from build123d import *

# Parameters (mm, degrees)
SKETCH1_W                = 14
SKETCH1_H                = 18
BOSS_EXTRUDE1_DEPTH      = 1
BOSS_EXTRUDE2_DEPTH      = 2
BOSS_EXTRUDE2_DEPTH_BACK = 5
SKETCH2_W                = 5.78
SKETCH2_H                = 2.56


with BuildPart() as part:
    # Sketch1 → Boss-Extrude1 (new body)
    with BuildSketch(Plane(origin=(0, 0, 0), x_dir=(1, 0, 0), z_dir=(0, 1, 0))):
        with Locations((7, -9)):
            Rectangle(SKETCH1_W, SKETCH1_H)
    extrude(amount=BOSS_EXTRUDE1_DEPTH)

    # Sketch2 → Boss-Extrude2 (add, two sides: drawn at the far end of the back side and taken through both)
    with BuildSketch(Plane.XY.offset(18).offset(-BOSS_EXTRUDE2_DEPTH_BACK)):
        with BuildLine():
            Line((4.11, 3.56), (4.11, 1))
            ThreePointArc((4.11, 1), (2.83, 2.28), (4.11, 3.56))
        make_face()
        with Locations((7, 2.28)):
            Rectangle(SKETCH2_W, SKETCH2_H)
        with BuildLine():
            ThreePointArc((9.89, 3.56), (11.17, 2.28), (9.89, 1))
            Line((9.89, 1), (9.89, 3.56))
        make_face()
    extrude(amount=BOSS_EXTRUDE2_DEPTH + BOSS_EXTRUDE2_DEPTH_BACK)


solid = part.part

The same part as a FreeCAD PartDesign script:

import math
import FreeCAD as App
import Part
import Sketcher

V = App.Vector
Q = App.Units.Quantity


def add_polygon(sketch, points):
    """Adds a closed chain of lines whose ends are joined by coincident constraints."""
    first, n = sketch.GeometryCount, len(points)
    for a, b in zip(points, points[1:] + points[:1]):
        sketch.addGeometry(Part.LineSegment(App.Vector(*a, 0), App.Vector(*b, 0)), False)
    for i in range(n):
        sketch.addConstraint(Sketcher.Constraint("Coincident", first + i, 2, first + (i + 1) % n, 1))

doc = App.newDocument("Part")
body = doc.addObject("PartDesign::Body", "Body")

# Sketch on XZ plane
sketch1 = body.newObject("Sketcher::SketchObject", "Sketch")
sketch1.AttachmentSupport = (doc.getObject("XZ_Plane"), [""])
sketch1.MapMode = "FlatFace"
add_polygon(sketch1, [(0, 0), (0, 18), (14, 18), (14, 0)])  # lines 0-3
sketch1.addConstraint(Sketcher.Constraint("Vertical", 0))
sketch1.addConstraint(Sketcher.Constraint("Horizontal", 1))
sketch1.addConstraint(Sketcher.Constraint("Vertical", 2))
sketch1.addConstraint(Sketcher.Constraint("Horizontal", 3))
sketch1.addConstraint(Sketcher.Constraint("Coincident", 3, 2, -1, 1))
sketch1.addConstraint(Sketcher.Constraint("DistanceX", 1, 1, 1, 2, Q("14 mm")))
sketch1.addConstraint(Sketcher.Constraint("DistanceY", 0, 1, 0, 2, Q("18 mm")))
pad1 = body.newObject("PartDesign::Pad", "Pad")
pad1.Profile = sketch1
pad1.Length = 1
pad1.Reversed = True

# Sketch on XY plane
sketch2 = body.newObject("Sketcher::SketchObject", "Sketch001")
sketch2.AttachmentSupport = (doc.getObject("XY_Plane"), [""])
sketch2.MapMode = "FlatFace"
sketch2.AttachmentOffset = App.Placement(V(0, 0, 18), App.Rotation())
sketch2.addGeometry(Part.ArcOfCircle(Part.Circle(V(4.1, 2.3, 0), V(0, 0, 1), 1.3), math.radians(90), math.radians(270)), False)
sketch2.addGeometry(Part.LineSegment(V(4.1, 1, 0), V(9.9, 1, 0)), False)
sketch2.addGeometry(Part.ArcOfCircle(Part.Circle(V(9.9, 2.3, 0), V(0, 0, 1), 1.3), math.radians(-90), math.radians(90)), False)
sketch2.addGeometry(Part.LineSegment(V(9.9, 3.6, 0), V(4.1, 3.6, 0)), False)
sketch2.addConstraint(Sketcher.Constraint("Tangent", 0, 2, 1, 1))
sketch2.addConstraint(Sketcher.Constraint("Tangent", 1, 2, 2, 1))
sketch2.addConstraint(Sketcher.Constraint("Tangent", 2, 2, 3, 1))
sketch2.addConstraint(Sketcher.Constraint("Tangent", 3, 2, 0, 1))
sketch2.addConstraint(Sketcher.Constraint("Horizontal", 1))
sketch2.addConstraint(Sketcher.Constraint("Horizontal", 3))
sketch2.addConstraint(Sketcher.Constraint("Radius", 0, Q("1.28 mm")))
sketch2.addConstraint(Sketcher.Constraint("DistanceY", -1, 1, 0, 2, Q("1 mm")))
sketch2.addConstraint(Sketcher.Constraint("DistanceX", 1, 1, 1, 2, Q("5.78 mm")))
sketch2.addConstraint(Sketcher.Constraint("DistanceX", -1, 1, 0, 3, Q("4.11 mm")))
pad2 = body.newObject("PartDesign::Pad", "Pad001")
pad2.Profile = sketch2
pad2.Type = "TwoLengths"
pad2.Length = 2
pad2.Length2 = 5

doc.recompute()
